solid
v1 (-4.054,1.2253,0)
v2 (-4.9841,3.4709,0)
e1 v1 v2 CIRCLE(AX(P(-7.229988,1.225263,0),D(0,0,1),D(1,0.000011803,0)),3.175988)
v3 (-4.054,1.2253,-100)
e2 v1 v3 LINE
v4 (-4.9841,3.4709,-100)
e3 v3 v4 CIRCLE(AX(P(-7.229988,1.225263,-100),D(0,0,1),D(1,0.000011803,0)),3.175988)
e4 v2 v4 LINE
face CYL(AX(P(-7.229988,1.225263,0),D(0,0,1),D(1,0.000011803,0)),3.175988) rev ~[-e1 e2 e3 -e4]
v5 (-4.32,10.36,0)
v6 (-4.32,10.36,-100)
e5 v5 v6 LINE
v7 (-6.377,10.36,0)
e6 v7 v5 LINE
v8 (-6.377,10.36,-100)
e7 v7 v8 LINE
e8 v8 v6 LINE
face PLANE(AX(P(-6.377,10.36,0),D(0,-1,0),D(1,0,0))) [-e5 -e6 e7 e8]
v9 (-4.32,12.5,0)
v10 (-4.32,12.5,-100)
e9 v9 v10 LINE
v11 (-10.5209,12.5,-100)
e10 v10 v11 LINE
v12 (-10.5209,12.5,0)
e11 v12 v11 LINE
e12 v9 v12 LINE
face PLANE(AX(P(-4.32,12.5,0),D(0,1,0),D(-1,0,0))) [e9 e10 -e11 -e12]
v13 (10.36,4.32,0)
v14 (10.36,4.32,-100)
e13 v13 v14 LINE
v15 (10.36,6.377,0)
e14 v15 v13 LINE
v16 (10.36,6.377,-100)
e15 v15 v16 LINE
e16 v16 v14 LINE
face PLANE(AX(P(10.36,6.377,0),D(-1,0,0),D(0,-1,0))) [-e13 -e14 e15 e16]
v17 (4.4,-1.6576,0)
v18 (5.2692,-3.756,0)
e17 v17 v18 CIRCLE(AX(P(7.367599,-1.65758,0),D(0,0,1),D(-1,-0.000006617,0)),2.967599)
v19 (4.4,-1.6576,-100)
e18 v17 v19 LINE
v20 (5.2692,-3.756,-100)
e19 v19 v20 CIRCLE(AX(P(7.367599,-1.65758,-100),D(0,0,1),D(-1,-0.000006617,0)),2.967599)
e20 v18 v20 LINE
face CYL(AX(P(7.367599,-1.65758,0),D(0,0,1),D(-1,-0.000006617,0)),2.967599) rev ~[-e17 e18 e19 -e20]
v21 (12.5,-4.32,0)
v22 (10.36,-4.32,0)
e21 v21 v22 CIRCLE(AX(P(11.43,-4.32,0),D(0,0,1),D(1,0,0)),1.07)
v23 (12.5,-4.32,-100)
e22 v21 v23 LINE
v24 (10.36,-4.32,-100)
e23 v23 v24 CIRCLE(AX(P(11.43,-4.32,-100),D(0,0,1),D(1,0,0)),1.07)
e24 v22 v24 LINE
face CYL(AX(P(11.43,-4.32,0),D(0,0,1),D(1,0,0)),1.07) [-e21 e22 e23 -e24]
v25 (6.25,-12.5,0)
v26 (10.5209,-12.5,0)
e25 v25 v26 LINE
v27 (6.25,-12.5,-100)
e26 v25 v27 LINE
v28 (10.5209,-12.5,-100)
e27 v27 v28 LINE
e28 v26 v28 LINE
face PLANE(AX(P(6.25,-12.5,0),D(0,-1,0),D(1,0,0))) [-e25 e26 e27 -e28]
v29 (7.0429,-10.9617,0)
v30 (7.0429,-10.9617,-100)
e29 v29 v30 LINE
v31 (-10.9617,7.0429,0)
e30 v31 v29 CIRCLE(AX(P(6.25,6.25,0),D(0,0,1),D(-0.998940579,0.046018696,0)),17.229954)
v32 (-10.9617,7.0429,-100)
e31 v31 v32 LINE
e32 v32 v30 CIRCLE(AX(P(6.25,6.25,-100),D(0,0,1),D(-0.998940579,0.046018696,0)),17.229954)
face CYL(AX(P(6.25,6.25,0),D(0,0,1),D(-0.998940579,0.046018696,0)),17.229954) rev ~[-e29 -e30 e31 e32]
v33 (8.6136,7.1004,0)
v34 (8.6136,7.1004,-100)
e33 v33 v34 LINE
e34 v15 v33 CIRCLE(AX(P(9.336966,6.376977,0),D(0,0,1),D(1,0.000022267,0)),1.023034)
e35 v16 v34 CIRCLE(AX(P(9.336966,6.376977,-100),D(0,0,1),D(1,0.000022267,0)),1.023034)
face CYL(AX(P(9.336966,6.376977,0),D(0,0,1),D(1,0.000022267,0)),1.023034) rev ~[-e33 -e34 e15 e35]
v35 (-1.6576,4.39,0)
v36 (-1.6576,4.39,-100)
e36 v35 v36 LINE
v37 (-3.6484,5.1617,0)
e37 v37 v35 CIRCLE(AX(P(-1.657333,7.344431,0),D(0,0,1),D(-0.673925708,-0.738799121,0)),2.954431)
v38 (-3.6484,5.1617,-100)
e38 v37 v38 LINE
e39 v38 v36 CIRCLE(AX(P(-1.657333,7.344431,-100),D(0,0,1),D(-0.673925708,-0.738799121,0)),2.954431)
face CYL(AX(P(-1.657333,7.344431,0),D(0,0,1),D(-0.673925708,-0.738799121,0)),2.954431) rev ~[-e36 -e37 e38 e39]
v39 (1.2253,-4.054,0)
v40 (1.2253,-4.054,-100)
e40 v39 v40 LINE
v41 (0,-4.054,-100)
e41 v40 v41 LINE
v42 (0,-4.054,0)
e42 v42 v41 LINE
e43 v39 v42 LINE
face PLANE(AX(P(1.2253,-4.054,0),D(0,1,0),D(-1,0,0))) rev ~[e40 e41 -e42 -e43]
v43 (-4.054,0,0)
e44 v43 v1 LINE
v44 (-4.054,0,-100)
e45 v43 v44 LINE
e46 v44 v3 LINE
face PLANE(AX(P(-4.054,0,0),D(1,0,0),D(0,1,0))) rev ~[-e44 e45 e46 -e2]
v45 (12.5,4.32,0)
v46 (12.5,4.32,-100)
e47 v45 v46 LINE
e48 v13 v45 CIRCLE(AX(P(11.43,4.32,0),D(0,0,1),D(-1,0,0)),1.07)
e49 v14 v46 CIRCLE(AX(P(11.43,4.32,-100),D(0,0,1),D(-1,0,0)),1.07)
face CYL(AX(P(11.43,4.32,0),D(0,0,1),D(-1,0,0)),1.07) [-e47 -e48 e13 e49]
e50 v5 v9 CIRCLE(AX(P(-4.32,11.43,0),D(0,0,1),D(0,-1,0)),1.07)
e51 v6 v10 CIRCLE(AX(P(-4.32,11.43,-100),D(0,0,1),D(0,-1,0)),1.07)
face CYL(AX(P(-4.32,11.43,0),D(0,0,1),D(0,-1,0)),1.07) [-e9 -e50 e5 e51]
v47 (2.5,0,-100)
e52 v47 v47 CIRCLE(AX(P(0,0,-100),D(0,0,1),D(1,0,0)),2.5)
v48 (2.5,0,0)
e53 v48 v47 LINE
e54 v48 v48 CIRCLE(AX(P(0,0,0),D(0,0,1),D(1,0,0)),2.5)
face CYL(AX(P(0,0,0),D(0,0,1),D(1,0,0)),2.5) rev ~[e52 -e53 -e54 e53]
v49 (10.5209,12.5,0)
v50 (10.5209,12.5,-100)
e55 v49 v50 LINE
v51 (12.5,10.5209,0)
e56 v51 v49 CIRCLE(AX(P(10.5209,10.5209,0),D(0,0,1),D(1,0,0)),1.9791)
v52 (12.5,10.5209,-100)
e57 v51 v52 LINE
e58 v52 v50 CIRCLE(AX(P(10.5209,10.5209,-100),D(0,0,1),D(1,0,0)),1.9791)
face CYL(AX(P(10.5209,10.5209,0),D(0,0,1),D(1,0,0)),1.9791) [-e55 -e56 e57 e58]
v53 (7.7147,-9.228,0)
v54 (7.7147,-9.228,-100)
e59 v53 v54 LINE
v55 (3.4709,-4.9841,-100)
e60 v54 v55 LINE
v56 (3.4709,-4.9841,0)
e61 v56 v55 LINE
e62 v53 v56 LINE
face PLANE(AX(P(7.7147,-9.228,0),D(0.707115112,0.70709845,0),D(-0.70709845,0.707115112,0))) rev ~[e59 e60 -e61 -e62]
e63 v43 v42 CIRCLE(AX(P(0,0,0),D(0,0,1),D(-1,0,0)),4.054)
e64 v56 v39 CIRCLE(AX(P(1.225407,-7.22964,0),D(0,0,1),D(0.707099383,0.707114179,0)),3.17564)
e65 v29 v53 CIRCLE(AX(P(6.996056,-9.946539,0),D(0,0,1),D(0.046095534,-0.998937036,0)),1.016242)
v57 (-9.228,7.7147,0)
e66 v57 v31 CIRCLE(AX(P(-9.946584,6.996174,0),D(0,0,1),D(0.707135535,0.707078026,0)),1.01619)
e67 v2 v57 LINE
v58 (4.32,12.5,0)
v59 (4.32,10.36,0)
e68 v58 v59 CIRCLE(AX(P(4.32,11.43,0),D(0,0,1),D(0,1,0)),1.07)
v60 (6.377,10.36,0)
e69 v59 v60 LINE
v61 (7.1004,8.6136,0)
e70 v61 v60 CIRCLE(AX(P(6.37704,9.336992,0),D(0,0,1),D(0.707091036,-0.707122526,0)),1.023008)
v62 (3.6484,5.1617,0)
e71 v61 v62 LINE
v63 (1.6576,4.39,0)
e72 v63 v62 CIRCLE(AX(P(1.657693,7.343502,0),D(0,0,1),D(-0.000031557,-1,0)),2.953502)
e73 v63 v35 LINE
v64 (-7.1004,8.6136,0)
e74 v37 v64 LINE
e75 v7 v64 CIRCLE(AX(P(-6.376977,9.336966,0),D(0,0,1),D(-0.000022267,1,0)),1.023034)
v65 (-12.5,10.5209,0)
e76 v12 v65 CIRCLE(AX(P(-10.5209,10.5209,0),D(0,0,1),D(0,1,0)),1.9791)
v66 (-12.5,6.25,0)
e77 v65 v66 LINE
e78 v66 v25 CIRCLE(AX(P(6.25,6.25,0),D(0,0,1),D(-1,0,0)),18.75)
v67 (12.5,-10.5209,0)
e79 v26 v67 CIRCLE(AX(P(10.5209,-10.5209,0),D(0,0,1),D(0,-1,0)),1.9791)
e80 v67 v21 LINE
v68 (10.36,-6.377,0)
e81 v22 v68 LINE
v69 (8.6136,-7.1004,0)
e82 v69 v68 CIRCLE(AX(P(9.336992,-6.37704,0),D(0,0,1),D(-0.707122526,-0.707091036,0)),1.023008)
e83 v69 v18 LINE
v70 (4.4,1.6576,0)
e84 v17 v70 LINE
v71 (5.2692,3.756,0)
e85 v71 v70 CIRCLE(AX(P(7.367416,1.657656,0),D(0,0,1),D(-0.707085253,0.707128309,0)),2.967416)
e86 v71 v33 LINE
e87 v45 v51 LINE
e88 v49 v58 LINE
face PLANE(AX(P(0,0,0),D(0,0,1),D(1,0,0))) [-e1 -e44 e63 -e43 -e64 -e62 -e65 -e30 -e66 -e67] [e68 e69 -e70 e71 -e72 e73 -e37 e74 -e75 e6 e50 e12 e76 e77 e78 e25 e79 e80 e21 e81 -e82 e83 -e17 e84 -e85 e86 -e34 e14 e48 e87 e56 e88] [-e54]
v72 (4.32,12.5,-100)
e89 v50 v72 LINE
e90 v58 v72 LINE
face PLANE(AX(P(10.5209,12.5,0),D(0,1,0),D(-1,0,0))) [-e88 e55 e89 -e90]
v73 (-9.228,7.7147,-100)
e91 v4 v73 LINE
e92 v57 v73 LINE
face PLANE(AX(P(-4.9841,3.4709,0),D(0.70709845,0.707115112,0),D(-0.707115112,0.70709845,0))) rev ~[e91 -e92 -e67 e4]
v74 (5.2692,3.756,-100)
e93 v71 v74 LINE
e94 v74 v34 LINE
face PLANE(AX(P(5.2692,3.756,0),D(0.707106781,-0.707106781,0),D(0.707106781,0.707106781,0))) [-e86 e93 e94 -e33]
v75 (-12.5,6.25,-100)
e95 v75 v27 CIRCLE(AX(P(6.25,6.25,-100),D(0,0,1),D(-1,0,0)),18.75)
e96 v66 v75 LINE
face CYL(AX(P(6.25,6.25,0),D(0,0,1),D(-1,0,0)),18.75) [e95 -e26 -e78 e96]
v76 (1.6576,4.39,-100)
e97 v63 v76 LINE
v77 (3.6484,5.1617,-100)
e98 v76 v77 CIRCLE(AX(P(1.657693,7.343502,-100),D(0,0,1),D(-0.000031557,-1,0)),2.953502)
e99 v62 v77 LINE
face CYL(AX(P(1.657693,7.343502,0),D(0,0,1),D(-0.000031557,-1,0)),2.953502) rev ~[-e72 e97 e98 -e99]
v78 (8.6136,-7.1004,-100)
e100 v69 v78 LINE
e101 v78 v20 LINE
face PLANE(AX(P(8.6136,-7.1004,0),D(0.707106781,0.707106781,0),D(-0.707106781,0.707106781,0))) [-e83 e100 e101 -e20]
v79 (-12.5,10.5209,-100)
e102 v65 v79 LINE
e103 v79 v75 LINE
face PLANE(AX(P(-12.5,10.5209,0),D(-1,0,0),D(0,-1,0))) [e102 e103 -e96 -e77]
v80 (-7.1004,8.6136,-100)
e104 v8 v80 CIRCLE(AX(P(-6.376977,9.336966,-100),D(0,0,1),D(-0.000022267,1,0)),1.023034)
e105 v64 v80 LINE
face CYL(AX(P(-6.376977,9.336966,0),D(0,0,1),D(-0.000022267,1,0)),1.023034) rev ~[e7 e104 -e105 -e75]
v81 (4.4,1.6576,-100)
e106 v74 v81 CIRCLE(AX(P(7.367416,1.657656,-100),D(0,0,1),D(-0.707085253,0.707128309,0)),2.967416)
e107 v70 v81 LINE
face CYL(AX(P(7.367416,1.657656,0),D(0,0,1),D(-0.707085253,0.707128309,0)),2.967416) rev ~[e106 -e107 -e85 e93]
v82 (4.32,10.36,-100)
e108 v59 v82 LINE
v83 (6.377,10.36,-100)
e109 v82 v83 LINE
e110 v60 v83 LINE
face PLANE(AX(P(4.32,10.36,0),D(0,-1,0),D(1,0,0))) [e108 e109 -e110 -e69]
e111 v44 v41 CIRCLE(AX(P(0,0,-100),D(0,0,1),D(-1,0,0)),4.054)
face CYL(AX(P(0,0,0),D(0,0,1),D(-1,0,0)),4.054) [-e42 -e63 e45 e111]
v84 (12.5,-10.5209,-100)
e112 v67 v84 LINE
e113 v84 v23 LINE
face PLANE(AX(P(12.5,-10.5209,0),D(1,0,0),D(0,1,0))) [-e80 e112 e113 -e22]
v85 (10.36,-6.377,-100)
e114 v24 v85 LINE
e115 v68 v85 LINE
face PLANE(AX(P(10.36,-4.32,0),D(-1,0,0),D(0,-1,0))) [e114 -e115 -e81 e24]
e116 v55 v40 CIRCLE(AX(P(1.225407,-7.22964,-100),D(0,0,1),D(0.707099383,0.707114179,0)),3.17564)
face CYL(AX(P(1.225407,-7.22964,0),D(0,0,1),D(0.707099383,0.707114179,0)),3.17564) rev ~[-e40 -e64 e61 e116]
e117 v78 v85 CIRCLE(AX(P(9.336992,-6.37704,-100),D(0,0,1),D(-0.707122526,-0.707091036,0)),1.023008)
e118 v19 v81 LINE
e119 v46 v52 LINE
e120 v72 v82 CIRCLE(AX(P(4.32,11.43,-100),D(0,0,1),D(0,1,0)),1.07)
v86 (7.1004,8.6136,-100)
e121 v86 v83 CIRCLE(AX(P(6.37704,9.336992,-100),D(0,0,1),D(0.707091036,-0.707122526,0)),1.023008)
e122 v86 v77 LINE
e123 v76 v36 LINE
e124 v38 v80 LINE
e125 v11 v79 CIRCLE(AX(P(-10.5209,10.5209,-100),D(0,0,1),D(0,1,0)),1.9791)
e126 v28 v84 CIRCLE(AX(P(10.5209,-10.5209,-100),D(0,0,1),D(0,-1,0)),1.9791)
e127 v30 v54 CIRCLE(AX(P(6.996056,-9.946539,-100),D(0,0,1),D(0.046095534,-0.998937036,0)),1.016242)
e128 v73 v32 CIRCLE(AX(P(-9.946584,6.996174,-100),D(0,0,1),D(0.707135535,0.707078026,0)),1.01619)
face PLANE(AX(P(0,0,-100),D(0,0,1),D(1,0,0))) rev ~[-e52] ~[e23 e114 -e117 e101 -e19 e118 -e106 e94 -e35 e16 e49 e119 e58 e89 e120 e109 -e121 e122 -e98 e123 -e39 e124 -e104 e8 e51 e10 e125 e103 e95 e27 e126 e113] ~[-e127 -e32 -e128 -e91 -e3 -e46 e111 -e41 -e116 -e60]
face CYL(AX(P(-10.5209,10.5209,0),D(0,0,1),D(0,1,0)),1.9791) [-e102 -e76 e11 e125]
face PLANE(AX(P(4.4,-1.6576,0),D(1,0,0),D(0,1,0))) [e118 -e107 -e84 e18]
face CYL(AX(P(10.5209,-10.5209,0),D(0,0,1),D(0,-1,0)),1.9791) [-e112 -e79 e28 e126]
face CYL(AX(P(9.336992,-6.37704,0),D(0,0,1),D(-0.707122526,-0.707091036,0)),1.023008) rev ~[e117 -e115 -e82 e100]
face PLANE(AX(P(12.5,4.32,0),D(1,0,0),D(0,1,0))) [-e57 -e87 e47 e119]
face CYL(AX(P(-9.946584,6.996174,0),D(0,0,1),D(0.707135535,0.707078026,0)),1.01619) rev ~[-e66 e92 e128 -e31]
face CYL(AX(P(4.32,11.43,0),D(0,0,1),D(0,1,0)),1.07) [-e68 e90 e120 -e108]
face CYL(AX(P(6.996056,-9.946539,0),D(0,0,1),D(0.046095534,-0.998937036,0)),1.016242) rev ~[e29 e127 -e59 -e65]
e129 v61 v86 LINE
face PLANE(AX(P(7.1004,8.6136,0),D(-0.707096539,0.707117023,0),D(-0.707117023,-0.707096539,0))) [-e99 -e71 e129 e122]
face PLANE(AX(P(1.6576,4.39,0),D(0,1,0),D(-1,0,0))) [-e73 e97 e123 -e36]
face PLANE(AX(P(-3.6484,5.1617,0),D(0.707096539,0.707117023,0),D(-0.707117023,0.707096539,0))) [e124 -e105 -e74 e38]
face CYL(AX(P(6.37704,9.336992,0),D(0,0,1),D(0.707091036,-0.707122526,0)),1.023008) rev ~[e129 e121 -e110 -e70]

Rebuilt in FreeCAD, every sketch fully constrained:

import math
import FreeCAD as App
import Part
import Sketcher
from FreeCAD import Vector
Q = App.Units.Quantity

doc = App.newDocument("Part")
params = doc.addObject("Spreadsheet::Sheet", "Params")
for row, (alias, value) in enumerate([
    ("sketch1_diameter", "5 mm"),
    ("sketch1_radius", "1.07 mm"),
    ("sketch1_radius2", "18.75 mm"),
    ("sketch1_radius3", "17.23 mm"),
    ("pad1_length", "100 mm"),
], start=1):
    params.set(f"A{row}", alias)
    params.set(f"B{row}", "=" + value)
    params.setAlias(f"B{row}", alias)

body = doc.addObject("PartDesign::Body", "Body")

sketch1 = doc.addObject("Sketcher::SketchObject", "Sketch")
body.addObject(sketch1)
sketch1.AttachmentSupport = (doc.XY_Plane, [""])
sketch1.MapMode = "FlatFace"
sketch1.addGeometry([
    Part.ArcOfCircle(Part.Circle(Vector(7.3675, 1.6576, 0), Vector(0, 0, 1), 2.967515), math.radians(134.998635), math.radians(180)),
    Part.LineSegment(Vector(5.2692, 3.756, 0), Vector(8.6136, 7.1004, 0)),
    Part.ArcOfCircle(Part.Circle(Vector(9.337, 6.377, 0), Vector(0, 0, 1), 1.023), math.radians(0), math.radians(135)),
    Part.LineSegment(Vector(10.36, 6.377, 0), Vector(10.36, 4.32, 0)),
    Part.ArcOfCircle(Part.Circle(Vector(11.43, 4.32, 0), Vector(0, 0, 1), 1.07), math.radians(180), math.radians(360)),
    Part.LineSegment(Vector(12.5, 4.32, 0), Vector(12.5, 10.5209, 0)),
    Part.ArcOfCircle(Part.Circle(Vector(10.5209, 10.5209, 0), Vector(0, 0, 1), 1.9791), math.radians(0), math.radians(90)),
    Part.LineSegment(Vector(10.5209, 12.5, 0), Vector(4.32, 12.5, 0)),
    Part.ArcOfCircle(Part.Circle(Vector(4.32, 11.43, 0), Vector(0, 0, 1), 1.07), math.radians(90), math.radians(270)),
    Part.LineSegment(Vector(4.32, 10.36, 0), Vector(6.377, 10.36, 0)),
    Part.ArcOfCircle(Part.Circle(Vector(6.377, 9.337, 0), Vector(0, 0, 1), 1.023042), math.radians(-45), math.radians(90)),
    Part.LineSegment(Vector(7.1004, 8.6136, 0), Vector(3.6484, 5.1617, 0)),
    Part.ArcOfCircle(Part.Circle(Vector(1.6576, 7.344, 0), Vector(0, 0, 1), 2.954), math.radians(-90), math.radians(-47.627411)),
    Part.LineSegment(Vector(1.6576, 4.39, 0), Vector(-1.6576, 4.39, 0)),
    Part.ArcOfCircle(Part.Circle(Vector(-1.6576, 7.344, 0), Vector(0, 0, 1), 2.953933), math.radians(-132.372589), math.radians(-90)),
    Part.LineSegment(Vector(-3.6484, 5.1617, 0), Vector(-7.1004, 8.6136, 0)),
    Part.ArcOfCircle(Part.Circle(Vector(-6.377, 9.337, 0), Vector(0, 0, 1), 1.023), math.radians(90), math.radians(225)),
    Part.LineSegment(Vector(-6.377, 10.36, 0), Vector(-4.32, 10.36, 0)),
    Part.ArcOfCircle(Part.Circle(Vector(-4.32, 11.43, 0), Vector(0, 0, 1), 1.07), math.radians(-90), math.radians(90)),
    Part.LineSegment(Vector(-4.32, 12.5, 0), Vector(-10.5209, 12.5, 0)),
    Part.ArcOfCircle(Part.Circle(Vector(-10.5209, 10.5209, 0), Vector(0, 0, 1), 1.9791), math.radians(90), math.radians(180)),
    Part.LineSegment(Vector(-12.5, 10.5209, 0), Vector(-12.5, 6.25, 0)),
    Part.ArcOfCircle(Part.Circle(Vector(6.25, 6.25, 0), Vector(0, 0, 1), 18.75), math.radians(180), math.radians(270)),
    Part.LineSegment(Vector(6.25, -12.5, 0), Vector(10.5209, -12.5, 0)),
    Part.ArcOfCircle(Part.Circle(Vector(10.5209, -10.5209, 0), Vector(0, 0, 1), 1.9791), math.radians(-90), math.radians(0)),
    Part.LineSegment(Vector(12.5, -10.5209, 0), Vector(12.5, -4.32, 0)),
    Part.ArcOfCircle(Part.Circle(Vector(11.43, -4.32, 0), Vector(0, 0, 1), 1.07), math.radians(0), math.radians(180)),
    Part.LineSegment(Vector(10.36, -4.32, 0), Vector(10.36, -6.377, 0)),
    Part.ArcOfCircle(Part.Circle(Vector(9.337, -6.377, 0), Vector(0, 0, 1), 1.023042), math.radians(-135), math.radians(0)),
    Part.LineSegment(Vector(8.6136, -7.1004, 0), Vector(5.2692, -3.756, 0)),
    Part.ArcOfCircle(Part.Circle(Vector(7.3675, -1.6576, 0), Vector(0, 0, 1), 2.9675), math.radians(180), math.radians(225.001365)),
    Part.LineSegment(Vector(4.4, -1.6576, 0), Vector(4.4, 1.6576, 0)),
    Part.ArcOfCircle(Part.Circle(Vector(6.25, 6.25, 0), Vector(0, 0, 1), 17.229954), math.radians(177.362391), math.radians(272.637609)),
    Part.ArcOfCircle(Part.Circle(Vector(-9.9466, 6.9961, 0), Vector(0, 0, 1), 1.016254), math.radians(45), math.radians(177.360314)),
    Part.LineSegment(Vector(-9.228, 7.7147, 0), Vector(-4.9841, 3.4709, 0)),
    Part.ArcOfCircle(Part.Circle(Vector(-7.2298, 1.2253, 0), Vector(0, 0, 1), 3.1758), math.radians(0), math.radians(44.998724)),
    Part.LineSegment(Vector(-4.054, 1.2253, 0), Vector(-4.054, 0, 0)),
    Part.ArcOfCircle(Part.Circle(Vector(0, 0, 0), Vector(0, 0, 1), 4.054), math.radians(180), math.radians(270)),
    Part.LineSegment(Vector(0, -4.054, 0), Vector(1.2253, -4.054, 0)),
    Part.ArcOfCircle(Part.Circle(Vector(1.2253, -7.2298, 0), Vector(0, 0, 1), 3.175829), math.radians(45.001276), math.radians(90)),
    Part.LineSegment(Vector(3.4709, -4.9841, 0), Vector(7.7147, -9.228, 0)),
    Part.ArcOfCircle(Part.Circle(Vector(6.9961, -9.9466, 0), Vector(0, 0, 1), 1.016178), math.radians(-87.360314), math.radians(45)),
    Part.Circle(Vector(0, 0, 0), Vector(0, 0, 1), 2.5),
], False)
sketch1.addConstraint([
    Sketcher.Constraint("Tangent", 0, 1, 1, 1),
    Sketcher.Constraint("Tangent", 1, 2, 2, 2),
    Sketcher.Constraint("Tangent", 2, 1, 3, 1),
    Sketcher.Constraint("Tangent", 3, 2, 4, 1),
    Sketcher.Constraint("Tangent", 4, 2, 5, 1),
    Sketcher.Constraint("Tangent", 5, 2, 6, 1),
    Sketcher.Constraint("Tangent", 6, 2, 7, 1),
    Sketcher.Constraint("Tangent", 7, 2, 8, 1),
    Sketcher.Constraint("Tangent", 8, 2, 9, 1),
    Sketcher.Constraint("Tangent", 9, 2, 10, 2),
    Sketcher.Constraint("Tangent", 10, 1, 11, 1),
    Sketcher.Constraint("Coincident", 11, 2, 12, 2),
    Sketcher.Constraint("Tangent", 12, 1, 13, 1),
    Sketcher.Constraint("Tangent", 13, 2, 14, 2),
    Sketcher.Constraint("Coincident", 14, 1, 15, 1),
    Sketcher.Constraint("Tangent", 15, 2, 16, 2),
    Sketcher.Constraint("Tangent", 16, 1, 17, 1),
    Sketcher.Constraint("Tangent", 17, 2, 18, 1),
    Sketcher.Constraint("Tangent", 18, 2, 19, 1),
    Sketcher.Constraint("Tangent", 19, 2, 20, 1),
    Sketcher.Constraint("Tangent", 20, 2, 21, 1),
    Sketcher.Constraint("Tangent", 21, 2, 22, 1),
    Sketcher.Constraint("Tangent", 22, 2, 23, 1),
    Sketcher.Constraint("Tangent", 23, 2, 24, 1),
    Sketcher.Constraint("Tangent", 24, 2, 25, 1),
    Sketcher.Constraint("Tangent", 25, 2, 26, 1),
    Sketcher.Constraint("Tangent", 26, 2, 27, 1),
    Sketcher.Constraint("Tangent", 27, 2, 28, 2),
    Sketcher.Constraint("Tangent", 28, 1, 29, 1),
    Sketcher.Constraint("Tangent", 29, 2, 30, 2),
    Sketcher.Constraint("Tangent", 30, 1, 31, 1),
    Sketcher.Constraint("Tangent", 31, 2, 0, 2),
    Sketcher.Constraint("Tangent", 32, 1, 33, 2),
    Sketcher.Constraint("Tangent", 33, 1, 34, 1),
    Sketcher.Constraint("Tangent", 34, 2, 35, 2),
    Sketcher.Constraint("Tangent", 35, 1, 36, 1),
    Sketcher.Constraint("Tangent", 36, 2, 37, 1),
    Sketcher.Constraint("Tangent", 37, 2, 38, 1),
    Sketcher.Constraint("Tangent", 38, 2, 39, 2),
    Sketcher.Constraint("Tangent", 39, 1, 40, 1),
    Sketcher.Constraint("Tangent", 40, 2, 41, 2),
    Sketcher.Constraint("Tangent", 41, 1, 32, 2),
    Sketcher.Constraint("Vertical", 3),
    Sketcher.Constraint("Vertical", 5),
    Sketcher.Constraint("Horizontal", 7),
    Sketcher.Constraint("Horizontal", 9),
    Sketcher.Constraint("Horizontal", 13),
    Sketcher.Constraint("Horizontal", 17),
    Sketcher.Constraint("Horizontal", 19),
    Sketcher.Constraint("Vertical", 21),
    Sketcher.Constraint("Horizontal", 23),
    Sketcher.Constraint("Vertical", 25),
    Sketcher.Constraint("Vertical", 27),
    Sketcher.Constraint("Vertical", 31),
    Sketcher.Constraint("Vertical", 36),
    Sketcher.Constraint("Horizontal", 38),
    Sketcher.Constraint("Coincident", 37, 3, -1, 1),
    Sketcher.Constraint("Coincident", 42, 3, -1, 1),
    Sketcher.Constraint("Coincident", 32, 3, 22, 3),
    Sketcher.Constraint("Equal", 4, 8),
    Sketcher.Constraint("Equal", 2, 10),
    Sketcher.Constraint("Equal", 12, 14),
    Sketcher.Constraint("Equal", 10, 16),
    Sketcher.Constraint("Equal", 8, 18),
    Sketcher.Constraint("Equal", 6, 20),
    Sketcher.Constraint("Equal", 20, 24),
    Sketcher.Constraint("Equal", 18, 26),
    Sketcher.Constraint("Equal", 16, 28),
    Sketcher.Constraint("Equal", 0, 30),
    Sketcher.Constraint("Equal", 35, 39),
    Sketcher.Constraint("Equal", 33, 41),
    Sketcher.Constraint("Symmetric", 20, 3, 24, 3, -1, 1),
    Sketcher.Constraint("Symmetric", 10, 3, 16, 3, -2),
    Sketcher.Constraint("Symmetric", 11, 2, 14, 1, -2),
    Sketcher.Constraint("Symmetric", 4, 3, 26, 3, -1),
    Sketcher.Constraint("Symmetric", 1, 2, 28, 1, -1),
    Sketcher.Constraint("Parallel", 1, 11),
    Sketcher.Constraint("Perpendicular", 11, 15),
    Sketcher.Constraint("Parallel", 29, 34),
    Sketcher.Constraint("Parallel", 34, 40),
    Sketcher.Constraint("Equal", 9, 17),
    Sketcher.Constraint("Equal", 17, 3),
    Sketcher.Constraint("Equal", 19, 5),
    Sketcher.Constraint("Equal", 23, 21),
    Sketcher.Constraint("Equal", 13, 31),
    Sketcher.Constraint("Equal", 38, 36),
    Sketcher.Constraint("Diameter", 42, Q("5 mm")),
    Sketcher.Constraint("Radius", 4, Q("1.07 mm")),
    Sketcher.Constraint("Radius", 22, Q("18.75 mm")),
    Sketcher.Constraint("Radius", 32, Q("17.23 mm")),
    Sketcher.Constraint("Radius", 2, Q("1.023 mm")),
    Sketcher.Constraint("Radius", 6, Q("1.979 mm")),
    Sketcher.Constraint("Radius", 12, Q("2.954 mm")),
    Sketcher.Constraint("Radius", 37, Q("4.054 mm")),
    Sketcher.Constraint("DistanceX", -1, 1, 4, 2, Q("12.5 mm")),
    Sketcher.Constraint("DistanceX", -1, 1, 30, 1, Q("4.4 mm")),
    Sketcher.Constraint("Radius", 0, Q("2.9675 mm")),
    Sketcher.Constraint("Radius", 33, Q("1.0163 mm")),
    Sketcher.Constraint("Radius", 35, Q("3.1758 mm")),
    Sketcher.Constraint("DistanceX", 7, 2, 7, 1, Q("6.201 mm")),
    Sketcher.Constraint("DistanceX", 9, 1, 9, 2, Q("2.057 mm")),
    Sketcher.Constraint("DistanceY", -1, 1, 12, 1, Q("4.39 mm")),
    Sketcher.Constraint("DistanceX", 38, 1, 38, 2, Q("1.2253 mm")),
])
sketch1.setExpression("Constraints[86]", "Params.sketch1_diameter")
sketch1.setExpression("Constraints[87]", "Params.sketch1_radius")
sketch1.setExpression("Constraints[88]", "Params.sketch1_radius2")
sketch1.setExpression("Constraints[89]", "Params.sketch1_radius3")
pad1 = doc.addObject("PartDesign::Pad", "Pad")
body.addObject(pad1)
pad1.Profile = sketch1
pad1.setExpression("Length", "Params.pad1_length")
pad1.Reversed = True

doc.recompute()
